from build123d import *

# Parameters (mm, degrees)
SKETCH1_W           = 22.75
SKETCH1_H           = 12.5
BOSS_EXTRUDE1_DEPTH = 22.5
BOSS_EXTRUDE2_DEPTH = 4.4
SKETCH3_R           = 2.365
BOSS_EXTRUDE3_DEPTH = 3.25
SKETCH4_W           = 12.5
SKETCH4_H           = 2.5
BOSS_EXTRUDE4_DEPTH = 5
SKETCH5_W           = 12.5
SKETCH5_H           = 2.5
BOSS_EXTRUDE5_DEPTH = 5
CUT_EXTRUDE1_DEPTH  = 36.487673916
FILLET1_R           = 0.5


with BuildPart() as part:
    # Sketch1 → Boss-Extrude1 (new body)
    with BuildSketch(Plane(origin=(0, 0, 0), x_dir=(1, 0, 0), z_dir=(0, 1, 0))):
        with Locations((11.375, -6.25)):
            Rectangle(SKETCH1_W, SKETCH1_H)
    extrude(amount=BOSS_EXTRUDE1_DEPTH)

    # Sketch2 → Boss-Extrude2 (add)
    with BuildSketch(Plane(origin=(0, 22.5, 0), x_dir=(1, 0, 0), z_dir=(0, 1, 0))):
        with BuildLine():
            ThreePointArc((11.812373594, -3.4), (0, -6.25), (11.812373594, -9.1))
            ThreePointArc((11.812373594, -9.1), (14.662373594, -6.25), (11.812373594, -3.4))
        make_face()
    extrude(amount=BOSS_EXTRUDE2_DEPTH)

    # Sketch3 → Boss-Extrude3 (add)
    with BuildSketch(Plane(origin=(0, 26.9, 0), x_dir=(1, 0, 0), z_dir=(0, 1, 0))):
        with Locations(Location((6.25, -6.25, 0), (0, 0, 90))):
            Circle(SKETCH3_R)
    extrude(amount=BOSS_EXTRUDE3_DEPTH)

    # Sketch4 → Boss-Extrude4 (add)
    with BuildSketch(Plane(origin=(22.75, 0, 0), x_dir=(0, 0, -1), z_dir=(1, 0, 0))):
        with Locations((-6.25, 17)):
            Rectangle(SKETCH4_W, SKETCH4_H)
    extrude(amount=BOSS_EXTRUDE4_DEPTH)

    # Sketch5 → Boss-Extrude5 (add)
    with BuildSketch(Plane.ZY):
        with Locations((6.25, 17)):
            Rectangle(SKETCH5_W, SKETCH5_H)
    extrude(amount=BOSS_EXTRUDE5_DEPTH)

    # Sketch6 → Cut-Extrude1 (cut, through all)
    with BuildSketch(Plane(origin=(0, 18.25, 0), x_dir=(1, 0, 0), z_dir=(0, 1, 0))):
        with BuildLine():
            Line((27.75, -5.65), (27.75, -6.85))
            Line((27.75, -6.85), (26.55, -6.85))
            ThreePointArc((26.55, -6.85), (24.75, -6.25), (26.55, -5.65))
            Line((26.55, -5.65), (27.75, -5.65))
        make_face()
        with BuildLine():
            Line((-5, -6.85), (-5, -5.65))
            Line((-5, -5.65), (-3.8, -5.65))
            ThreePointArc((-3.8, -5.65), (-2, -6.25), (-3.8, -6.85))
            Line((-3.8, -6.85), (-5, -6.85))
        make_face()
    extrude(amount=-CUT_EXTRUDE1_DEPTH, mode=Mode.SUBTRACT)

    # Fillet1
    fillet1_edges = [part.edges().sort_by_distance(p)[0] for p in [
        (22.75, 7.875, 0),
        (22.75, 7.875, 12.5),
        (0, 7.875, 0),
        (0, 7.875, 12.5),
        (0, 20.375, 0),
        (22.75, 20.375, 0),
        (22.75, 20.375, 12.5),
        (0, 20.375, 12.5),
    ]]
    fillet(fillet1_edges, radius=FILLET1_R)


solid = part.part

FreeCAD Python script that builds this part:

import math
import FreeCAD as App
import Part
import Sketcher

V = App.Vector
Q = App.Units.Quantity


def edges_at(feature, points):
    """Names of the edges that pass closest to the given points."""
    edges = feature.Shape.Edges
    near = lambda p: min(range(len(edges)), key=lambda i: edges[i].distToShape(Part.Vertex(*p))[0])
    return sorted({f"Edge{near(p) + 1}" for p in points})


def add_polygon(sketch, points):
    """Adds a closed chain of lines whose ends are joined by coincident constraints."""
    first, n = sketch.GeometryCount, len(points)
    for a, b in zip(points, points[1:] + points[:1]):
        sketch.addGeometry(Part.LineSegment(App.Vector(*a, 0), App.Vector(*b, 0)), False)
    for i in range(n):
        sketch.addConstraint(Sketcher.Constraint("Coincident", first + i, 2, first + (i + 1) % n, 1))

doc = App.newDocument("Part")
body = doc.addObject("PartDesign::Body", "Body")

# Sketch on XZ plane
sketch1 = doc.addObject("Sketcher::SketchObject", "Sketch")
body.addObject(sketch1)
sketch1.AttachmentSupport = (doc.XZ_Plane, [""])
sketch1.MapMode = "FlatFace"
add_polygon(sketch1, [(0, 0), (0, 12), (23, 12), (23, 0)])  # lines 0-3
sketch1.addConstraint([
    Sketcher.Constraint("Vertical", 0),
    Sketcher.Constraint("Horizontal", 1),
    Sketcher.Constraint("Vertical", 2),
    Sketcher.Constraint("Horizontal", 3),
    Sketcher.Constraint("Coincident", 3, 2, -1, 1),
    Sketcher.Constraint("DistanceY", 0, 1, 0, 2, Q("12.5 mm")),
    Sketcher.Constraint("DistanceX", 1, 1, 1, 2, Q("22.75 mm")),
])
pad1 = doc.addObject("PartDesign::Pad", "Pad")
body.addObject(pad1)
pad1.Profile = sketch1
pad1.Length = 22.5
pad1.Reversed = True

# Sketch on XZ plane
sketch2 = doc.addObject("Sketcher::SketchObject", "Sketch001")
body.addObject(sketch2)
sketch2.AttachmentSupport = (doc.XZ_Plane, [""])
sketch2.MapMode = "FlatFace"
sketch2.AttachmentOffset = App.Placement(V(0, 0, -22.5), App.Rotation())
sketch2.addGeometry([
    Part.ArcOfCircle(Part.Circle(V(6.2, 6.2, 0), V(0, 0, 1), 6.2), math.radians(27), math.radians(333)),
    Part.ArcOfCircle(Part.Circle(V(11.8, 6.2, 0), V(0, 0, 1), 2.9), math.radians(-90), math.radians(90)),
], False)
sketch2.addConstraint([
    Sketcher.Constraint("Coincident", 0, 1, 1, 2),
    Sketcher.Constraint("Coincident", 1, 1, 0, 2),
    Sketcher.Constraint("Horizontal", 0, 3, 1, 3),
    Sketcher.Constraint("Vertical", 1, 3, 0, 1),
    Sketcher.Constraint("Radius", 0, Q("6.25 mm")),
    Sketcher.Constraint("Radius", 1, Q("2.85 mm")),
    Sketcher.Constraint("DistanceY", -1, 1, 0, 1, Q("9.1 mm")),
    Sketcher.Constraint("DistanceX", -1, 1, 0, 3, Q("6.25 mm")),
])
pad2 = doc.addObject("PartDesign::Pad", "Pad001")
body.addObject(pad2)
pad2.Profile = sketch2
pad2.Length = 4.4
pad2.Reversed = True

# Sketch on XZ plane
sketch3 = doc.addObject("Sketcher::SketchObject", "Sketch002")
body.addObject(sketch3)
sketch3.AttachmentSupport = (doc.XZ_Plane, [""])
sketch3.MapMode = "FlatFace"
sketch3.AttachmentOffset = App.Placement(V(0, 0, -26.9), App.Rotation())
sketch3.addGeometry(Part.Circle(V(6.2, 6.2, 0), V(0, 0, 1), 2.4), False)
sketch3.addConstraint([
    Sketcher.Constraint("Diameter", 0, Q("4.73 mm")),
    Sketcher.Constraint("DistanceX", -1, 1, 0, 3, Q("6.25 mm")),
    Sketcher.Constraint("DistanceY", -1, 1, 0, 3, Q("6.25 mm")),
])
pad3 = doc.addObject("PartDesign::Pad", "Pad002")
body.addObject(pad3)
pad3.Profile = sketch3
pad3.Length = 3.25
pad3.Reversed = True

# Sketch on YZ plane
sketch4 = doc.addObject("Sketcher::SketchObject", "Sketch003")
body.addObject(sketch4)
sketch4.AttachmentSupport = (doc.YZ_Plane, [""])
sketch4.MapMode = "FlatFace"
sketch4.AttachmentOffset = App.Placement(V(0, 0, 22.75), App.Rotation())
add_polygon(sketch4, [(18.2, 12.5), (15.8, 12.5), (15.8, 0), (18.2, 0)])  # lines 0-3
sketch4.addConstraint([
    Sketcher.Constraint("Horizontal", 0),
    Sketcher.Constraint("Vertical", 1),
    Sketcher.Constraint("Horizontal", 2),
    Sketcher.Constraint("Vertical", 3),
    Sketcher.Constraint("PointOnObject", 1, 2, -1),
    Sketcher.Constraint("DistanceX", 0, 2, 0, 1, Q("2.5 mm")),
    Sketcher.Constraint("DistanceY", 1, 2, 1, 1, Q("12.5 mm")),
    Sketcher.Constraint("DistanceX", -1, 1, 0, 2, Q("15.75 mm")),
])
pad4 = doc.addObject("PartDesign::Pad", "Pad003")
body.addObject(pad4)
pad4.Profile = sketch4
pad4.Length = 5

# Sketch on YZ plane
sketch5 = doc.addObject("Sketcher::SketchObject", "Sketch004")
body.addObject(sketch5)
sketch5.AttachmentSupport = (doc.YZ_Plane, [""])
sketch5.MapMode = "FlatFace"
add_polygon(sketch5, [(18.2, 0), (15.8, 0), (15.8, 12.5), (18.2, 12.5)])  # lines 0-3
sketch5.addConstraint([
    Sketcher.Constraint("Horizontal", 0),
    Sketcher.Constraint("Vertical", 1),
    Sketcher.Constraint("Horizontal", 2),
    Sketcher.Constraint("Vertical", 3),
    Sketcher.Constraint("PointOnObject", 0, 2, -1),
    Sketcher.Constraint("DistanceX", 0, 2, 0, 1, Q("2.5 mm")),
    Sketcher.Constraint("DistanceY", 1, 1, 1, 2, Q("12.5 mm")),
    Sketcher.Constraint("DistanceX", -1, 1, 0, 2, Q("15.75 mm")),
])
pad5 = doc.addObject("PartDesign::Pad", "Pad004")
body.addObject(pad5)
pad5.Profile = sketch5
pad5.Length = 5
pad5.Reversed = True

# Sketch on XZ plane
sketch6 = doc.addObject("Sketcher::SketchObject", "Sketch005")
body.addObject(sketch6)
sketch6.AttachmentSupport = (doc.XZ_Plane, [""])
sketch6.MapMode = "FlatFace"
sketch6.AttachmentOffset = App.Placement(V(0, 0, -18.25), App.Rotation())
sketch6.addGeometry([
    Part.LineSegment(V(27.8, 6.8, 0), V(27.8, 5.7, 0)),  # 0
    Part.LineSegment(V(27.8, 5.7, 0), V(26.6, 5.7, 0)),  # 1
    Part.ArcOfCircle(Part.Circle(V(25.8, 6.2, 0), V(0, 0, 1), 1), math.radians(37), math.radians(323)),  # 2
    Part.LineSegment(V(26.6, 6.8, 0), V(27.8, 6.8, 0)),  # 3
    Part.LineSegment(V(-5, 5.7, 0), V(-5, 6.8, 0)),  # 4
    Part.LineSegment(V(-5, 6.8, 0), V(-3.8, 6.8, 0)),  # 5
    Part.ArcOfCircle(Part.Circle(V(-3, 6.2, 0), V(0, 0, 1), 1), math.radians(-143), math.radians(143)),  # 6
    Part.LineSegment(V(-3.8, 5.7, 0), V(-5, 5.7, 0)),  # 7
], False)
sketch6.addConstraint([
    Sketcher.Constraint("Coincident", 0, 2, 1, 1),
    Sketcher.Constraint("Coincident", 1, 2, 2, 2),
    Sketcher.Constraint("Coincident", 2, 1, 3, 1),
    Sketcher.Constraint("Coincident", 3, 2, 0, 1),
    Sketcher.Constraint("Coincident", 4, 2, 5, 1),
    Sketcher.Constraint("Coincident", 5, 2, 6, 2),
    Sketcher.Constraint("Coincident", 6, 1, 7, 1),
    Sketcher.Constraint("Coincident", 7, 2, 4, 1),
    Sketcher.Constraint("Vertical", 0),
    Sketcher.Constraint("Horizontal", 1),
    Sketcher.Constraint("Horizontal", 3),
    Sketcher.Constraint("Vertical", 4),
    Sketcher.Constraint("Horizontal", 5),
    Sketcher.Constraint("Horizontal", 7),
    Sketcher.Constraint("Equal", 2, 6),
    Sketcher.Constraint("Horizontal", 2, 3, 6, 3),
    Sketcher.Constraint("Horizontal", 3, 2, 4, 2),
    Sketcher.Constraint("Horizontal", 1, 2, 6, 1),
    Sketcher.Constraint("Vertical", 1, 2, 2, 1),
    Sketcher.Constraint("Equal", 3, 5),
    Sketcher.Constraint("Equal", 7, 0),
    Sketcher.Constraint("Radius", 2, Q("1 mm")),
    Sketcher.Constraint("DistanceX", 1, 2, 1, 1, Q("1.2 mm")),
    Sketcher.Constraint("DistanceX", 6, 3, -1, 1, Q("3 mm")),
    Sketcher.Constraint("DistanceX", -1, 1, 2, 3, Q("25.75 mm")),
    Sketcher.Constraint("DistanceY", -1, 1, 2, 3, Q("6.25 mm")),
])
pocket1 = doc.addObject("PartDesign::Pocket", "Pocket")
body.addObject(pocket1)
pocket1.Profile = sketch6
pocket1.Type = "ThroughAll"
pocket1.Reversed = True
doc.recompute()

fillet = doc.addObject("PartDesign::Fillet", "Fillet")
body.addObject(fillet)
fillet.Base = (pocket1, edges_at(pocket1, [
    (22.75, 7.875, 0),
    (22.75, 7.875, 12.5),
    (0, 7.875, 0),
    (0, 7.875, 12.5),
    (0, 20.375, 0),
    (22.75, 20.375, 0),
    (22.75, 20.375, 12.5),
    (0, 20.375, 12.5),
]))
fillet.Radius = 0.5

doc.recompute()
